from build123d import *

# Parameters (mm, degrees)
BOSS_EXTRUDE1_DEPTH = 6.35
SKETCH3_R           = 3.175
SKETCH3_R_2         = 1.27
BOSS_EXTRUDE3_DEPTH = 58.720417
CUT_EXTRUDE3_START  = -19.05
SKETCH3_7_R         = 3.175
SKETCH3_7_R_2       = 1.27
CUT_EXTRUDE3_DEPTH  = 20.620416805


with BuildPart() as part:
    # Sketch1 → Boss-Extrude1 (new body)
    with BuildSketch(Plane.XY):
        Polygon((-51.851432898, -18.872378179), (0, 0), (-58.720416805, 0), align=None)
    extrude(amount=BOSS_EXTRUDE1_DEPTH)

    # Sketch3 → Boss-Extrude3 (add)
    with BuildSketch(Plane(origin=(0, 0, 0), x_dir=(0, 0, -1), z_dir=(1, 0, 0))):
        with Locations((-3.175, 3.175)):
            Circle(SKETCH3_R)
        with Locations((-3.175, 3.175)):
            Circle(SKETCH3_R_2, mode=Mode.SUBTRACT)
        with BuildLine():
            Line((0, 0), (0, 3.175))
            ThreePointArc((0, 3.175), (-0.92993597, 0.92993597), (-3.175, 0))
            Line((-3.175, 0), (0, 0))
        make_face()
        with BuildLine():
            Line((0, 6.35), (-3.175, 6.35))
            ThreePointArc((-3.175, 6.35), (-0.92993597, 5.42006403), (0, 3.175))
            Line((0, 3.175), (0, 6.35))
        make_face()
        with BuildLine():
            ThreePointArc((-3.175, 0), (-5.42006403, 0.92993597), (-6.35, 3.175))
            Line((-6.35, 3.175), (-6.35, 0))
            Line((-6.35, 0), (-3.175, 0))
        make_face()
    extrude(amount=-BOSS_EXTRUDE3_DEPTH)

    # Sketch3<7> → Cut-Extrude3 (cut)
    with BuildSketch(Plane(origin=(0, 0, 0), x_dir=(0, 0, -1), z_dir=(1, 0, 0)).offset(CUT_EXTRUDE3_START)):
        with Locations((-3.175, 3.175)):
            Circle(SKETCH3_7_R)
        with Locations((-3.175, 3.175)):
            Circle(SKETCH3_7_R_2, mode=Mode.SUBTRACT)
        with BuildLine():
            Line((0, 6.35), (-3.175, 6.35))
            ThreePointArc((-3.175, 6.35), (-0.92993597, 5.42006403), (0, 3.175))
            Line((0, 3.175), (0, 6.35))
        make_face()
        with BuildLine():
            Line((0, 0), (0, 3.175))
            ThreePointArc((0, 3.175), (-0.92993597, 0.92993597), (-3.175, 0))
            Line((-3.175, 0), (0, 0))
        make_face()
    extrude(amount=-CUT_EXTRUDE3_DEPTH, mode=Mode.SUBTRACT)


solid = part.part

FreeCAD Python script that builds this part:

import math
import FreeCAD as App
import Part
import Sketcher
from FreeCAD import Vector
Q = App.Units.Quantity

doc = App.newDocument("Part")
params = doc.addObject("Spreadsheet::Sheet", "Params")
for row, (alias, value) in enumerate([
    ("pad1_length", "0.25 in"),
    ("sketch2_diameter", "0.1 in"),
    ("sketch2_radius", "0.125 in"),
    ("sketch2_width", "0.25 in"),
    ("pad2_length", "58.720417 mm"),
    ("sketch3_diameter", "0.1 in"),
    ("sketch3_radius", "0.125 in"),
    ("sketch3_height", "0.125 in"),
    ("pocket1_length", "20.620417 mm"),
], start=1):
    params.set(f"A{row}", alias)
    params.set(f"B{row}", "=" + value)
    params.setAlias(f"B{row}", alias)

body = doc.addObject("PartDesign::Body", "Body")

# Sketch on XY plane
sketch1 = body.newObject("Sketcher::SketchObject", "Sketch")
sketch1.AttachmentSupport = (doc.getObject("XY_Plane"), [""])
sketch1.MapMode = "FlatFace"
sketch1.addGeometry([
    Part.LineSegment(Vector(-52, -19, 0), Vector(0, 0, 0)),
    Part.LineSegment(Vector(0, 0, 0), Vector(-59, 0, 0)),
    Part.LineSegment(Vector(-59, 0, 0), Vector(-52, -19, 0)),
], False)
sketch1.addConstraint([
    Sketcher.Constraint("Coincident", 0, 2, 1, 1),
    Sketcher.Constraint("Coincident", 1, 2, 2, 1),
    Sketcher.Constraint("Coincident", 2, 2, 0, 1),
    Sketcher.Constraint("Horizontal", 1),
    Sketcher.Constraint("Coincident", 0, 2, -1, 1),
    Sketcher.Constraint("Perpendicular", 0, 2),
    Sketcher.Constraint("Angle", 0, Q("20 deg")),
    Sketcher.Constraint("DistanceX", 1, 2, 1, 1, 58.720417),
])
pad1 = body.newObject("PartDesign::Pad", "Pad")
pad1.Profile = sketch1
pad1.setExpression("Length", "Params.pad1_length")

# Sketch on YZ plane
sketch2 = body.newObject("Sketcher::SketchObject", "Sketch001")
sketch2.AttachmentSupport = (doc.getObject("YZ_Plane"), [""])
sketch2.MapMode = "FlatFace"
sketch2.addGeometry([
    Part.ArcOfCircle(Part.Circle(Vector(3.2, 3.2, 0), Vector(0, 0, 1), 3.2), math.radians(0), math.radians(90)),  # 0
    Part.LineSegment(Vector(3.2, 6.3, 0), Vector(0, 6.3, 0)),  # 1
    Part.LineSegment(Vector(0, 6.3, 0), Vector(0, 0, 0)),  # 2
    Part.LineSegment(Vector(0, 0, 0), Vector(6.3, 0, 0)),  # 3
    Part.LineSegment(Vector(6.3, 0, 0), Vector(6.3, 3.2, 0)),  # 4
    Part.Circle(Vector(3.2, 3.2, 0), Vector(0, 0, 1), 1.3),  # 5
], False)
sketch2.addConstraint([
    Sketcher.Constraint("Tangent", 0, 2, 1, 1),
    Sketcher.Constraint("Coincident", 1, 2, 2, 1),
    Sketcher.Constraint("Coincident", 2, 2, 3, 1),
    Sketcher.Constraint("Coincident", 3, 2, 4, 1),
    Sketcher.Constraint("Tangent", 4, 2, 0, 1),
    Sketcher.Constraint("Horizontal", 1),
    Sketcher.Constraint("Vertical", 2),
    Sketcher.Constraint("Horizontal", 3),
    Sketcher.Constraint("Vertical", 4),
    Sketcher.Constraint("Coincident", 2, 2, -1, 1),
    Sketcher.Constraint("Coincident", 5, 3, 0, 3),
    Sketcher.Constraint("Equal", 3, 2),
    Sketcher.Constraint("Diameter", 5, Q("0.1 in")),
    Sketcher.Constraint("Radius", 0, Q("0.125 in")),
    Sketcher.Constraint("DistanceX", 3, 1, 3, 2, Q("0.25 in")),
])
sketch2.setExpression("Constraints[12]", "Params.sketch2_diameter")
sketch2.setExpression("Constraints[13]", "Params.sketch2_radius")
sketch2.setExpression("Constraints[14]", "Params.sketch2_width")
pad2 = body.newObject("PartDesign::Pad", "Pad001")
pad2.Profile = sketch2
pad2.setExpression("Length", "Params.pad2_length")
pad2.Reversed = True

# Sketch on YZ plane
sketch3 = body.newObject("Sketcher::SketchObject", "Sketch002")
sketch3.AttachmentSupport = (doc.getObject("YZ_Plane"), [""])
sketch3.MapMode = "FlatFace"
sketch3.AttachmentOffset = App.Placement(Vector(0, 0, -0.75 * 25.4), App.Rotation())
sketch3.addGeometry([
    Part.ArcOfCircle(Part.Circle(Vector(3.2, 3.2, 0), Vector(0, 0, 1), 3.2), math.radians(0), math.radians(180)),  # 0
    Part.LineSegment(Vector(0, 3.2, 0), Vector(0, 0, 0)),  # 1
    Part.LineSegment(Vector(0, 0, 0), Vector(6.3, 0, 0)),  # 2
    Part.LineSegment(Vector(6.3, 0, 0), Vector(6.3, 3.2, 0)),  # 3
    Part.Circle(Vector(3.2, 3.2, 0), Vector(0, 0, 1), 1.3),  # 4
], False)
sketch3.addConstraint([
    Sketcher.Constraint("Tangent", 0, 2, 1, 1),
    Sketcher.Constraint("Coincident", 1, 2, 2, 1),
    Sketcher.Constraint("Coincident", 2, 2, 3, 1),
    Sketcher.Constraint("Tangent", 3, 2, 0, 1),
    Sketcher.Constraint("Vertical", 1),
    Sketcher.Constraint("Horizontal", 2),
    Sketcher.Constraint("Vertical", 3),
    Sketcher.Constraint("Coincident", 1, 2, -1, 1),
    Sketcher.Constraint("Coincident", 4, 3, 0, 3),
    Sketcher.Constraint("Diameter", 4, Q("0.1 in")),
    Sketcher.Constraint("Radius", 0, Q("0.125 in")),
    Sketcher.Constraint("DistanceY", 1, 2, 1, 1, Q("0.125 in")),
])
sketch3.setExpression("Constraints[9]", "Params.sketch3_diameter")
sketch3.setExpression("Constraints[10]", "Params.sketch3_radius")
sketch3.setExpression("Constraints[11]", "Params.sketch3_height")
pocket1 = body.newObject("PartDesign::Pocket", "Pocket")
pocket1.Profile = sketch3
pocket1.setExpression("Length", "Params.pocket1_length")

doc.recompute()
